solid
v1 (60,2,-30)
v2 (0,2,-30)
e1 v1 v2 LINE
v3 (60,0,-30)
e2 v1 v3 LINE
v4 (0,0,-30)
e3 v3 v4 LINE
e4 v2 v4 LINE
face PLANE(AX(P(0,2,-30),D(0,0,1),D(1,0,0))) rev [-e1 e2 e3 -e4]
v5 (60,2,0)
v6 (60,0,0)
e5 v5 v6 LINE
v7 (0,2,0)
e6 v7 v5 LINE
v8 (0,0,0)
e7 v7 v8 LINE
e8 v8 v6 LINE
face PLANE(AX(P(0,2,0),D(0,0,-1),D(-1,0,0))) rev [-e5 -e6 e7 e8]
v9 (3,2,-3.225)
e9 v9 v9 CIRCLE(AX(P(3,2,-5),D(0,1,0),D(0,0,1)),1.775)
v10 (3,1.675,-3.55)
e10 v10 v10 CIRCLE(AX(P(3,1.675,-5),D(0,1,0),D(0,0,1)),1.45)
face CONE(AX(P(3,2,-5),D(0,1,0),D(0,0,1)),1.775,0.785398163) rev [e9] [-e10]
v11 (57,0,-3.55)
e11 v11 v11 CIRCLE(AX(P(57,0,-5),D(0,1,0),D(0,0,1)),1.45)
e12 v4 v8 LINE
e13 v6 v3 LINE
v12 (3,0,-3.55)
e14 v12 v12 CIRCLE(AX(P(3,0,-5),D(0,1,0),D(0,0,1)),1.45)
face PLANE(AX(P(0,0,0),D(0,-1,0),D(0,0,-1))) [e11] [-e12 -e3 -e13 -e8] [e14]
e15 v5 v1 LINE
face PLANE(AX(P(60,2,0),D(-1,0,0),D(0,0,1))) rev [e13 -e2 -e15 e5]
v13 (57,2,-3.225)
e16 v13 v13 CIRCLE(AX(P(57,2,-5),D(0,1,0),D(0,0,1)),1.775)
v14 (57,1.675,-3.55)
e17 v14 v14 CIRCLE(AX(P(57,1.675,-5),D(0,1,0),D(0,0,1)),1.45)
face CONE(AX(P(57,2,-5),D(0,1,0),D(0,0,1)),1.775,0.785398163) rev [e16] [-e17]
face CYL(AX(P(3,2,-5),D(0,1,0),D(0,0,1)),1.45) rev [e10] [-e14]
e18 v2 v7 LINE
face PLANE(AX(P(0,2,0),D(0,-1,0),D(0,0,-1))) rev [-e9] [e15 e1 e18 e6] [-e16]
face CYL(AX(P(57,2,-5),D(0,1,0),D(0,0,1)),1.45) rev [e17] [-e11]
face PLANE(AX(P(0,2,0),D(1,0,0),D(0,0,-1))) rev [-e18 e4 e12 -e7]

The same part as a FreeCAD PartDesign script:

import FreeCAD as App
import Part
import Sketcher
from FreeCAD import Vector

doc = App.newDocument("Part")
body = doc.addObject("PartDesign::Body", "Body")

sketch1 = body.newObject("Sketcher::SketchObject", "Sketch")
sketch1.AttachmentSupport = (doc.getObject("XZ_Plane"), [""])
sketch1.MapMode = "FlatFace"
sketch1.addGeometry(Part.LineSegment(Vector(0, -30, 0), Vector(0, 0, 0)), False)
sketch1.addGeometry(Part.LineSegment(Vector(0, 0, 0), Vector(60, 0, 0)), False)
sketch1.addGeometry(Part.LineSegment(Vector(60, 0, 0), Vector(60, -30, 0)), False)
sketch1.addGeometry(Part.LineSegment(Vector(60, -30, 0), Vector(0, -30, 0)), False)
sketch1.addConstraint(Sketcher.Constraint("Coincident", 0, 2, 1, 1))
sketch1.addConstraint(Sketcher.Constraint("Coincident", 1, 2, 2, 1))
sketch1.addConstraint(Sketcher.Constraint("Coincident", 2, 2, 3, 1))
sketch1.addConstraint(Sketcher.Constraint("Coincident", 3, 2, 0, 1))
sketch1.addConstraint(Sketcher.Constraint("Vertical", 0))
sketch1.addConstraint(Sketcher.Constraint("Horizontal", 1))
sketch1.addConstraint(Sketcher.Constraint("Vertical", 2))
sketch1.addConstraint(Sketcher.Constraint("Horizontal", 3))
sketch1.addConstraint(Sketcher.Constraint("Coincident", 0, 2, -1, 1))
sketch1.addConstraint(Sketcher.Constraint("DistanceX", 1, 1, 1, 2, 60.0))
sketch1.addConstraint(Sketcher.Constraint("DistanceY", 0, 1, 0, 2, 30.0))
pad1 = body.newObject("PartDesign::Pad", "Pad")
pad1.Profile = sketch1
pad1.Length = 2
pad1.Reversed = True

sketch2 = body.newObject("Sketcher::SketchObject", "Sketch001")
sketch2.AttachmentSupport = (doc.getObject("XZ_Plane"), [""])
sketch2.MapMode = "FlatFace"
sketch2.AttachmentOffset = App.Placement(Vector(0, 0, -2), App.Rotation())
sketch2.addGeometry(Part.Circle(Vector(3, -5, 0), Vector(0, 0, 1), 1.4), False)
sketch2.addGeometry(Part.Circle(Vector(57, -5, 0), Vector(0, 0, 1), 1.4), False)
sketch2.addConstraint(Sketcher.Constraint("Equal", 0, 1))
sketch2.addConstraint(Sketcher.Constraint("Horizontal", 0, 3, 1, 3))
sketch2.addConstraint(Sketcher.Constraint("Diameter", 0, 2.9))
sketch2.addConstraint(Sketcher.Constraint("DistanceX", -1, 1, 0, 3, 3.0))
sketch2.addConstraint(Sketcher.Constraint("DistanceY", 0, 3, -1, 1, 5.0))
sketch2.addConstraint(Sketcher.Constraint("DistanceX", -1, 1, 1, 3, 57.0))
doc.recompute()
hole = body.newObject("PartDesign::Hole", "Hole")
hole.Profile = sketch2
hole.ThreadType = "None"
hole.Diameter = 2.9
hole.DepthType = "ThroughAll"
hole.HoleCutType = "Countersink"
hole.HoleCutDiameter = 3.55
hole.HoleCutCountersinkAngle = 90
hole.Reversed = True

doc.recompute()
